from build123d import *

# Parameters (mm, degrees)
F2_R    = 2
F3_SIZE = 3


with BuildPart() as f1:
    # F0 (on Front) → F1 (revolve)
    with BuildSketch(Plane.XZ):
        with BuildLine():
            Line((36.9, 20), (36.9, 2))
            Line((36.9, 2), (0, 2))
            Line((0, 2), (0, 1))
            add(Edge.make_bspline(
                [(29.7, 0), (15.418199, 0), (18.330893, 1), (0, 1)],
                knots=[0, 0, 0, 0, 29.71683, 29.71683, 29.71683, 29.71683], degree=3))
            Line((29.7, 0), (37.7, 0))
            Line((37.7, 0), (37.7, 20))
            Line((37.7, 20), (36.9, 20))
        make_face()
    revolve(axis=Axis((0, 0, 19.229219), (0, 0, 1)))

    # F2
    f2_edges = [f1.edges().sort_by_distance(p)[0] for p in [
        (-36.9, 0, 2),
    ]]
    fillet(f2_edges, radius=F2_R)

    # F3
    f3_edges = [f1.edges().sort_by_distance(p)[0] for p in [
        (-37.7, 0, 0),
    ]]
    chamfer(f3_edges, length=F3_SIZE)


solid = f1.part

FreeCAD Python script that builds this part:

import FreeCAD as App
import Part
import Sketcher
from FreeCAD import Vector
Q = App.Units.Quantity


def edges_at(feature, points):
    """Names of the edges that pass closest to the given points."""
    edges = feature.Shape.Edges
    near = lambda p: min(range(len(edges)), key=lambda i: edges[i].distToShape(Part.Vertex(*p))[0])
    return sorted({f"Edge{near(p) + 1}" for p in points})

doc = App.newDocument("Part")
body = doc.addObject("PartDesign::Body", "Body")

sketch1 = doc.addObject("Sketcher::SketchObject", "Sketch")
body.addObject(sketch1)
sketch1.AttachmentSupport = (doc.XZ_Plane, [""])
sketch1.MapMode = "FlatFace"
sketch1.addGeometry(Part.LineSegment(Vector(36.9, 20, 0), Vector(36.9, 2, 0)), False)
sketch1.addGeometry(Part.LineSegment(Vector(36.9, 2, 0), Vector(0, 2, 0)), False)
sketch1.addGeometry(Part.LineSegment(Vector(0, 2, 0), Vector(0, 1, 0)), False)
sketch1.addGeometry(Part.BSplineCurve([Vector(29.7, 0, 0), Vector(15.418199, 0, 0), Vector(18.330893, 1, 0), Vector(0, 1, 0)], [4, 4], [0, 29.71683], False, 3, [1, 1, 1, 1], False), False)
sketch1.addGeometry(Part.LineSegment(Vector(29.7, 0, 0), Vector(37.7, 0, 0)), False)
sketch1.addGeometry(Part.LineSegment(Vector(37.7, 0, 0), Vector(37.7, 20, 0)), False)
sketch1.addGeometry(Part.LineSegment(Vector(37.7, 20, 0), Vector(36.9, 20, 0)), False)
sketch1.addConstraint(Sketcher.Constraint("Block", 3))
sketch1.addConstraint(Sketcher.Constraint("Coincident", 0, 2, 1, 1))
sketch1.addConstraint(Sketcher.Constraint("Coincident", 1, 2, 2, 1))
sketch1.addConstraint(Sketcher.Constraint("Coincident", 2, 2, 3, 2))
sketch1.addConstraint(Sketcher.Constraint("Coincident", 3, 1, 4, 1))
sketch1.addConstraint(Sketcher.Constraint("Coincident", 4, 2, 5, 1))
sketch1.addConstraint(Sketcher.Constraint("Coincident", 5, 2, 6, 1))
sketch1.addConstraint(Sketcher.Constraint("Coincident", 6, 2, 0, 1))
sketch1.addConstraint(Sketcher.Constraint("Vertical", 0))
sketch1.addConstraint(Sketcher.Constraint("Horizontal", 1))
sketch1.addConstraint(Sketcher.Constraint("Vertical", 2))
sketch1.addConstraint(Sketcher.Constraint("Horizontal", 4))
sketch1.addConstraint(Sketcher.Constraint("Vertical", 5))
sketch1.addConstraint(Sketcher.Constraint("Horizontal", 6))
sketch1.addConstraint(Sketcher.Constraint("DistanceX", 4, 1, 4, 2, Q("8 mm")))
sketch1.addConstraint(Sketcher.Constraint("DistanceY", 0, 2, 0, 1, Q("18 mm")))
sketch1.addConstraint(Sketcher.Constraint("DistanceY", 2, 2, 2, 1, Q("1 mm")))
sketch1.addConstraint(Sketcher.Constraint("DistanceX", 1, 2, 1, 1, Q("36.9 mm")))
revolution = doc.addObject("PartDesign::Revolution", "Revolution")
body.addObject(revolution)
revolution.Profile = sketch1
revolution.ReferenceAxis = (sketch1, ["V_Axis"])
revolution.Angle = 360
doc.recompute()

fillet = doc.addObject("PartDesign::Fillet", "Fillet")
body.addObject(fillet)
fillet.Base = (revolution, edges_at(revolution, [(-36.9, 0, 2)]))
fillet.Radius = 2
doc.recompute()

chamfer = doc.addObject("PartDesign::Chamfer", "Chamfer")
body.addObject(chamfer)
chamfer.Base = (fillet, edges_at(fillet, [(-37.7, 0, 0)]))
chamfer.Size = 3

doc.recompute()
